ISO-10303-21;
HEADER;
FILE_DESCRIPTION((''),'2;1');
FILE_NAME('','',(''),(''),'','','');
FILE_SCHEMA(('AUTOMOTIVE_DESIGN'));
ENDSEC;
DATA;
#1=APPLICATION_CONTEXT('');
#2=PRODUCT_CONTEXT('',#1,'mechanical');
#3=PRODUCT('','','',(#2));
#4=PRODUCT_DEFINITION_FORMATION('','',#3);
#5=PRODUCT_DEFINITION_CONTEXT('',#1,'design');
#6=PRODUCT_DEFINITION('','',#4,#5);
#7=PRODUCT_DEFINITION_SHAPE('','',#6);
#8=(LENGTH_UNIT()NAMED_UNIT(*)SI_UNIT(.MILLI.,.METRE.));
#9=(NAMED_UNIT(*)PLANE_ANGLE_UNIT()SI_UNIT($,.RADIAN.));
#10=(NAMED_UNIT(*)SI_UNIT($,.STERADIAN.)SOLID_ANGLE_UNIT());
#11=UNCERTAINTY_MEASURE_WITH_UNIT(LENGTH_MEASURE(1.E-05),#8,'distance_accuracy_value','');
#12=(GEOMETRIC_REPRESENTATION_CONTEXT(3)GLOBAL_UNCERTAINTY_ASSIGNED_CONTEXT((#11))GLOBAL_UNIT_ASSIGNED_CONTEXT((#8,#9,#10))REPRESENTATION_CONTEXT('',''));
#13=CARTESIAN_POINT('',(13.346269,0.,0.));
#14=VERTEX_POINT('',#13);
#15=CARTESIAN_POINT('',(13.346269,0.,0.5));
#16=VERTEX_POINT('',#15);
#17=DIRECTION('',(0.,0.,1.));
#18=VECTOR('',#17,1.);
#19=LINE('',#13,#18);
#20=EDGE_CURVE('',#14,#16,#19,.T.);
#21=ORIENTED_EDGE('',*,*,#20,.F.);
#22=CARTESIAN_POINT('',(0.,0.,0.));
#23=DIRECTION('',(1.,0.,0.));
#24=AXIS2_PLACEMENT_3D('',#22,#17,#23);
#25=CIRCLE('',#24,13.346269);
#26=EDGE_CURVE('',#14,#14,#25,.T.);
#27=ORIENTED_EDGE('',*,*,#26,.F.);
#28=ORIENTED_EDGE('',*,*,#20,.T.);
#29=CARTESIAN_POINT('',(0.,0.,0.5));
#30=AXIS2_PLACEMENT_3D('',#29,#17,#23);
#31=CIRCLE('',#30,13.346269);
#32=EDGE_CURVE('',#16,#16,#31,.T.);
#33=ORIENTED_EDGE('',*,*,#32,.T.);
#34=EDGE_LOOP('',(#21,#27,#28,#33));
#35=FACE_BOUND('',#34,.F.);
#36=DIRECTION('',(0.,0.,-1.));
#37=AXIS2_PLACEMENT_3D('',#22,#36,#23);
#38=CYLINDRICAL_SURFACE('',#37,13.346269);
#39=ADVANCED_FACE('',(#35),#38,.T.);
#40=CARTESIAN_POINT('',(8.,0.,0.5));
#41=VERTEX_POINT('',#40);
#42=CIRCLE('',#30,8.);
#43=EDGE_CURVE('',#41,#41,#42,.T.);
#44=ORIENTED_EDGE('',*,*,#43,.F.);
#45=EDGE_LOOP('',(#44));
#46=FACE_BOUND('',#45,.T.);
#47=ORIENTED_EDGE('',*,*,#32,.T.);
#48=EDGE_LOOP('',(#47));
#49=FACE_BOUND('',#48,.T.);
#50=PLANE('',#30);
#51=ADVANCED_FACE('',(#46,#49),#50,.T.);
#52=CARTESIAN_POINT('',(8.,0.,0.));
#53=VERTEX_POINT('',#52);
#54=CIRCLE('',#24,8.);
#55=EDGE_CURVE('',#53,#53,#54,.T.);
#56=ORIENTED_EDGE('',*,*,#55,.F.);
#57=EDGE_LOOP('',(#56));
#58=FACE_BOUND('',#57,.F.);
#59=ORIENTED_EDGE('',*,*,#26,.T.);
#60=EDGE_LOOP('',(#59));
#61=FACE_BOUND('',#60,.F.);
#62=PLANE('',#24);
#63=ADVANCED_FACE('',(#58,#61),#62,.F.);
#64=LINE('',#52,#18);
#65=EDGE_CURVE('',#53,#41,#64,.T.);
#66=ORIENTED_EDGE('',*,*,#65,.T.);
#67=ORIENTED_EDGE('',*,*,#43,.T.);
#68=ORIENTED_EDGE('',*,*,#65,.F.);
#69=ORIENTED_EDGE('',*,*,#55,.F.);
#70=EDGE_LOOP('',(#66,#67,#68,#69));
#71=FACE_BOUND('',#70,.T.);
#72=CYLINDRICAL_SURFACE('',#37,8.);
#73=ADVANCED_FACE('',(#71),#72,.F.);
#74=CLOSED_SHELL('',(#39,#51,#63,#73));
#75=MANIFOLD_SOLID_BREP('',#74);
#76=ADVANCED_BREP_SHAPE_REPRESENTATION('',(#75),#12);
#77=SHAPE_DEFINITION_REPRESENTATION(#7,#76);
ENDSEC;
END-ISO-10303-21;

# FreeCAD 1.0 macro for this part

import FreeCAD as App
import Part
import Sketcher
from FreeCAD import Vector
Q = App.Units.Quantity

doc = App.newDocument("Part")
body = doc.addObject("PartDesign::Body", "Body")

sketch1 = body.newObject("Sketcher::SketchObject", "Sketch")
sketch1.AttachmentSupport = (doc.getObject("XY_Plane"), [""])
sketch1.MapMode = "FlatFace"
sketch1.addGeometry(Part.Circle(Vector(0, 0, 0), Vector(0, 0, 1), 13), False)
sketch1.addGeometry(Part.Circle(Vector(0, 0, 0), Vector(0, 0, 1), 8), False)
sketch1.addConstraint(Sketcher.Constraint("Coincident", 0, 3, -1, 1))
sketch1.addConstraint(Sketcher.Constraint("Coincident", 1, 3, -1, 1))
sketch1.addConstraint(Sketcher.Constraint("Diameter", 1, Q("16 mm")))
sketch1.addConstraint(Sketcher.Constraint("Diameter", 0, Q("26.692538 mm")))
pad1 = body.newObject("PartDesign::Pad", "Pad")
pad1.Profile = sketch1
pad1.Length = 0.5

doc.recompute()
